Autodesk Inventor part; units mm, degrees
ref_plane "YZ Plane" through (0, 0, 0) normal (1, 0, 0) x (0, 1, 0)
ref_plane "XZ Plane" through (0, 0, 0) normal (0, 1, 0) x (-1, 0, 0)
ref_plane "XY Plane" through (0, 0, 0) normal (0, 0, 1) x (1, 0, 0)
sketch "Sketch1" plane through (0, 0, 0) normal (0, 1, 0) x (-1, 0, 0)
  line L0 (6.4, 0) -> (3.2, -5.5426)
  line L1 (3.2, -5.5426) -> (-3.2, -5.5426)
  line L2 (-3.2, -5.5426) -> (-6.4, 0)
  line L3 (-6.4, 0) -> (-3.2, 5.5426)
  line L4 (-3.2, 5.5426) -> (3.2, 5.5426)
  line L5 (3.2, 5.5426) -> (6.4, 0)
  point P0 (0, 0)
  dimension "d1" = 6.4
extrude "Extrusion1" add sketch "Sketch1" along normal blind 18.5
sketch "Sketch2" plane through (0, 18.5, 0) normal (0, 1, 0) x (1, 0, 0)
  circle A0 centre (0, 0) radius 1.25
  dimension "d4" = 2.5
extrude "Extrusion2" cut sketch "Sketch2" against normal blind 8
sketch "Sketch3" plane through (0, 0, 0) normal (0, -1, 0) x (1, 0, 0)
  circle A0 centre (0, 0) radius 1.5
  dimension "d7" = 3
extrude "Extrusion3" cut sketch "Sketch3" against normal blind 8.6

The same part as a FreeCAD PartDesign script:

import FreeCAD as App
import Part
import Sketcher

V = App.Vector

doc = App.newDocument("Part")
body = doc.addObject("PartDesign::Body", "Body")

# Sketch on XZ plane
sketch1 = body.newObject("Sketcher::SketchObject", "Sketch")
sketch1.AttachmentSupport = (doc.getObject("XZ_Plane"), [""])
sketch1.MapMode = "FlatFace"
sketch1.addGeometry([
    Part.LineSegment(V(-3.2, -5.5426, 0), V(-6.4, 0, 0)),  # 0
    Part.LineSegment(V(-6.4, 0, 0), V(-3.2, 5.5426, 0)),  # 1
    Part.LineSegment(V(-3.2, 5.5426, 0), V(3.2, 5.5426, 0)),  # 2
    Part.LineSegment(V(3.2, 5.5426, 0), V(6.4, 0, 0)),  # 3
    Part.LineSegment(V(6.4, 0, 0), V(3.2, -5.5426, 0)),  # 4
    Part.LineSegment(V(3.2, -5.5426, 0), V(-3.2, -5.5426, 0)),  # 5
], False)
sketch1.addConstraint([
    Sketcher.Constraint("Coincident", 0, 2, 1, 1),
    Sketcher.Constraint("Coincident", 1, 2, 2, 1),
    Sketcher.Constraint("Coincident", 2, 2, 3, 1),
    Sketcher.Constraint("Coincident", 3, 2, 4, 1),
    Sketcher.Constraint("Coincident", 4, 2, 5, 1),
    Sketcher.Constraint("Coincident", 5, 2, 0, 1),
    Sketcher.Constraint("Horizontal", 2),
    Sketcher.Constraint("Horizontal", 5),
    Sketcher.Constraint("Symmetric", 0, 2, 3, 2, -1, 1),
    Sketcher.Constraint("Symmetric", 1, 2, 4, 2, -1, 1),
    Sketcher.Constraint("PointOnObject", 0, 2, -1),
    Sketcher.Constraint("Parallel", 0, 3),
    Sketcher.Constraint("Vertical", 2, 2, 4, 2),
    Sketcher.Constraint("DistanceX", 2, 1, 2, 2, 6.4),
    Sketcher.Constraint("Distance", 0, 6.4),
    Sketcher.Constraint("DistanceX", 0, 2, -1, 1, 6.4),
])
pad1 = body.newObject("PartDesign::Pad", "Pad")
pad1.Profile = sketch1
pad1.Length = 18.5
pad1.Reversed = True

# Sketch on XZ plane
sketch2 = body.newObject("Sketcher::SketchObject", "Sketch001")
sketch2.AttachmentSupport = (doc.getObject("XZ_Plane"), [""])
sketch2.MapMode = "FlatFace"
sketch2.AttachmentOffset = App.Placement(V(0, 0, -18.5), App.Rotation())
sketch2.addGeometry(Part.Circle(V(0, 0, 0), V(0, 0, 1), 1.25), False)
sketch2.addConstraint([
    Sketcher.Constraint("Coincident", 0, 3, -1, 1),
    Sketcher.Constraint("Diameter", 0, 2.5),
])
pocket1 = body.newObject("PartDesign::Pocket", "Pocket")
pocket1.Profile = sketch2
pocket1.Length = 8
pocket1.Reversed = True

# Sketch on XZ plane
sketch3 = body.newObject("Sketcher::SketchObject", "Sketch002")
sketch3.AttachmentSupport = (doc.getObject("XZ_Plane"), [""])
sketch3.MapMode = "FlatFace"
sketch3.addGeometry(Part.Circle(V(0, 0, 0), V(0, 0, 1), 1.5), False)
sketch3.addConstraint([
    Sketcher.Constraint("Coincident", 0, 3, -1, 1),
    Sketcher.Constraint("Diameter", 0, 3.0),
])
pocket2 = body.newObject("PartDesign::Pocket", "Pocket001")
pocket2.Profile = sketch3
pocket2.Length = 8.6

doc.recompute()
